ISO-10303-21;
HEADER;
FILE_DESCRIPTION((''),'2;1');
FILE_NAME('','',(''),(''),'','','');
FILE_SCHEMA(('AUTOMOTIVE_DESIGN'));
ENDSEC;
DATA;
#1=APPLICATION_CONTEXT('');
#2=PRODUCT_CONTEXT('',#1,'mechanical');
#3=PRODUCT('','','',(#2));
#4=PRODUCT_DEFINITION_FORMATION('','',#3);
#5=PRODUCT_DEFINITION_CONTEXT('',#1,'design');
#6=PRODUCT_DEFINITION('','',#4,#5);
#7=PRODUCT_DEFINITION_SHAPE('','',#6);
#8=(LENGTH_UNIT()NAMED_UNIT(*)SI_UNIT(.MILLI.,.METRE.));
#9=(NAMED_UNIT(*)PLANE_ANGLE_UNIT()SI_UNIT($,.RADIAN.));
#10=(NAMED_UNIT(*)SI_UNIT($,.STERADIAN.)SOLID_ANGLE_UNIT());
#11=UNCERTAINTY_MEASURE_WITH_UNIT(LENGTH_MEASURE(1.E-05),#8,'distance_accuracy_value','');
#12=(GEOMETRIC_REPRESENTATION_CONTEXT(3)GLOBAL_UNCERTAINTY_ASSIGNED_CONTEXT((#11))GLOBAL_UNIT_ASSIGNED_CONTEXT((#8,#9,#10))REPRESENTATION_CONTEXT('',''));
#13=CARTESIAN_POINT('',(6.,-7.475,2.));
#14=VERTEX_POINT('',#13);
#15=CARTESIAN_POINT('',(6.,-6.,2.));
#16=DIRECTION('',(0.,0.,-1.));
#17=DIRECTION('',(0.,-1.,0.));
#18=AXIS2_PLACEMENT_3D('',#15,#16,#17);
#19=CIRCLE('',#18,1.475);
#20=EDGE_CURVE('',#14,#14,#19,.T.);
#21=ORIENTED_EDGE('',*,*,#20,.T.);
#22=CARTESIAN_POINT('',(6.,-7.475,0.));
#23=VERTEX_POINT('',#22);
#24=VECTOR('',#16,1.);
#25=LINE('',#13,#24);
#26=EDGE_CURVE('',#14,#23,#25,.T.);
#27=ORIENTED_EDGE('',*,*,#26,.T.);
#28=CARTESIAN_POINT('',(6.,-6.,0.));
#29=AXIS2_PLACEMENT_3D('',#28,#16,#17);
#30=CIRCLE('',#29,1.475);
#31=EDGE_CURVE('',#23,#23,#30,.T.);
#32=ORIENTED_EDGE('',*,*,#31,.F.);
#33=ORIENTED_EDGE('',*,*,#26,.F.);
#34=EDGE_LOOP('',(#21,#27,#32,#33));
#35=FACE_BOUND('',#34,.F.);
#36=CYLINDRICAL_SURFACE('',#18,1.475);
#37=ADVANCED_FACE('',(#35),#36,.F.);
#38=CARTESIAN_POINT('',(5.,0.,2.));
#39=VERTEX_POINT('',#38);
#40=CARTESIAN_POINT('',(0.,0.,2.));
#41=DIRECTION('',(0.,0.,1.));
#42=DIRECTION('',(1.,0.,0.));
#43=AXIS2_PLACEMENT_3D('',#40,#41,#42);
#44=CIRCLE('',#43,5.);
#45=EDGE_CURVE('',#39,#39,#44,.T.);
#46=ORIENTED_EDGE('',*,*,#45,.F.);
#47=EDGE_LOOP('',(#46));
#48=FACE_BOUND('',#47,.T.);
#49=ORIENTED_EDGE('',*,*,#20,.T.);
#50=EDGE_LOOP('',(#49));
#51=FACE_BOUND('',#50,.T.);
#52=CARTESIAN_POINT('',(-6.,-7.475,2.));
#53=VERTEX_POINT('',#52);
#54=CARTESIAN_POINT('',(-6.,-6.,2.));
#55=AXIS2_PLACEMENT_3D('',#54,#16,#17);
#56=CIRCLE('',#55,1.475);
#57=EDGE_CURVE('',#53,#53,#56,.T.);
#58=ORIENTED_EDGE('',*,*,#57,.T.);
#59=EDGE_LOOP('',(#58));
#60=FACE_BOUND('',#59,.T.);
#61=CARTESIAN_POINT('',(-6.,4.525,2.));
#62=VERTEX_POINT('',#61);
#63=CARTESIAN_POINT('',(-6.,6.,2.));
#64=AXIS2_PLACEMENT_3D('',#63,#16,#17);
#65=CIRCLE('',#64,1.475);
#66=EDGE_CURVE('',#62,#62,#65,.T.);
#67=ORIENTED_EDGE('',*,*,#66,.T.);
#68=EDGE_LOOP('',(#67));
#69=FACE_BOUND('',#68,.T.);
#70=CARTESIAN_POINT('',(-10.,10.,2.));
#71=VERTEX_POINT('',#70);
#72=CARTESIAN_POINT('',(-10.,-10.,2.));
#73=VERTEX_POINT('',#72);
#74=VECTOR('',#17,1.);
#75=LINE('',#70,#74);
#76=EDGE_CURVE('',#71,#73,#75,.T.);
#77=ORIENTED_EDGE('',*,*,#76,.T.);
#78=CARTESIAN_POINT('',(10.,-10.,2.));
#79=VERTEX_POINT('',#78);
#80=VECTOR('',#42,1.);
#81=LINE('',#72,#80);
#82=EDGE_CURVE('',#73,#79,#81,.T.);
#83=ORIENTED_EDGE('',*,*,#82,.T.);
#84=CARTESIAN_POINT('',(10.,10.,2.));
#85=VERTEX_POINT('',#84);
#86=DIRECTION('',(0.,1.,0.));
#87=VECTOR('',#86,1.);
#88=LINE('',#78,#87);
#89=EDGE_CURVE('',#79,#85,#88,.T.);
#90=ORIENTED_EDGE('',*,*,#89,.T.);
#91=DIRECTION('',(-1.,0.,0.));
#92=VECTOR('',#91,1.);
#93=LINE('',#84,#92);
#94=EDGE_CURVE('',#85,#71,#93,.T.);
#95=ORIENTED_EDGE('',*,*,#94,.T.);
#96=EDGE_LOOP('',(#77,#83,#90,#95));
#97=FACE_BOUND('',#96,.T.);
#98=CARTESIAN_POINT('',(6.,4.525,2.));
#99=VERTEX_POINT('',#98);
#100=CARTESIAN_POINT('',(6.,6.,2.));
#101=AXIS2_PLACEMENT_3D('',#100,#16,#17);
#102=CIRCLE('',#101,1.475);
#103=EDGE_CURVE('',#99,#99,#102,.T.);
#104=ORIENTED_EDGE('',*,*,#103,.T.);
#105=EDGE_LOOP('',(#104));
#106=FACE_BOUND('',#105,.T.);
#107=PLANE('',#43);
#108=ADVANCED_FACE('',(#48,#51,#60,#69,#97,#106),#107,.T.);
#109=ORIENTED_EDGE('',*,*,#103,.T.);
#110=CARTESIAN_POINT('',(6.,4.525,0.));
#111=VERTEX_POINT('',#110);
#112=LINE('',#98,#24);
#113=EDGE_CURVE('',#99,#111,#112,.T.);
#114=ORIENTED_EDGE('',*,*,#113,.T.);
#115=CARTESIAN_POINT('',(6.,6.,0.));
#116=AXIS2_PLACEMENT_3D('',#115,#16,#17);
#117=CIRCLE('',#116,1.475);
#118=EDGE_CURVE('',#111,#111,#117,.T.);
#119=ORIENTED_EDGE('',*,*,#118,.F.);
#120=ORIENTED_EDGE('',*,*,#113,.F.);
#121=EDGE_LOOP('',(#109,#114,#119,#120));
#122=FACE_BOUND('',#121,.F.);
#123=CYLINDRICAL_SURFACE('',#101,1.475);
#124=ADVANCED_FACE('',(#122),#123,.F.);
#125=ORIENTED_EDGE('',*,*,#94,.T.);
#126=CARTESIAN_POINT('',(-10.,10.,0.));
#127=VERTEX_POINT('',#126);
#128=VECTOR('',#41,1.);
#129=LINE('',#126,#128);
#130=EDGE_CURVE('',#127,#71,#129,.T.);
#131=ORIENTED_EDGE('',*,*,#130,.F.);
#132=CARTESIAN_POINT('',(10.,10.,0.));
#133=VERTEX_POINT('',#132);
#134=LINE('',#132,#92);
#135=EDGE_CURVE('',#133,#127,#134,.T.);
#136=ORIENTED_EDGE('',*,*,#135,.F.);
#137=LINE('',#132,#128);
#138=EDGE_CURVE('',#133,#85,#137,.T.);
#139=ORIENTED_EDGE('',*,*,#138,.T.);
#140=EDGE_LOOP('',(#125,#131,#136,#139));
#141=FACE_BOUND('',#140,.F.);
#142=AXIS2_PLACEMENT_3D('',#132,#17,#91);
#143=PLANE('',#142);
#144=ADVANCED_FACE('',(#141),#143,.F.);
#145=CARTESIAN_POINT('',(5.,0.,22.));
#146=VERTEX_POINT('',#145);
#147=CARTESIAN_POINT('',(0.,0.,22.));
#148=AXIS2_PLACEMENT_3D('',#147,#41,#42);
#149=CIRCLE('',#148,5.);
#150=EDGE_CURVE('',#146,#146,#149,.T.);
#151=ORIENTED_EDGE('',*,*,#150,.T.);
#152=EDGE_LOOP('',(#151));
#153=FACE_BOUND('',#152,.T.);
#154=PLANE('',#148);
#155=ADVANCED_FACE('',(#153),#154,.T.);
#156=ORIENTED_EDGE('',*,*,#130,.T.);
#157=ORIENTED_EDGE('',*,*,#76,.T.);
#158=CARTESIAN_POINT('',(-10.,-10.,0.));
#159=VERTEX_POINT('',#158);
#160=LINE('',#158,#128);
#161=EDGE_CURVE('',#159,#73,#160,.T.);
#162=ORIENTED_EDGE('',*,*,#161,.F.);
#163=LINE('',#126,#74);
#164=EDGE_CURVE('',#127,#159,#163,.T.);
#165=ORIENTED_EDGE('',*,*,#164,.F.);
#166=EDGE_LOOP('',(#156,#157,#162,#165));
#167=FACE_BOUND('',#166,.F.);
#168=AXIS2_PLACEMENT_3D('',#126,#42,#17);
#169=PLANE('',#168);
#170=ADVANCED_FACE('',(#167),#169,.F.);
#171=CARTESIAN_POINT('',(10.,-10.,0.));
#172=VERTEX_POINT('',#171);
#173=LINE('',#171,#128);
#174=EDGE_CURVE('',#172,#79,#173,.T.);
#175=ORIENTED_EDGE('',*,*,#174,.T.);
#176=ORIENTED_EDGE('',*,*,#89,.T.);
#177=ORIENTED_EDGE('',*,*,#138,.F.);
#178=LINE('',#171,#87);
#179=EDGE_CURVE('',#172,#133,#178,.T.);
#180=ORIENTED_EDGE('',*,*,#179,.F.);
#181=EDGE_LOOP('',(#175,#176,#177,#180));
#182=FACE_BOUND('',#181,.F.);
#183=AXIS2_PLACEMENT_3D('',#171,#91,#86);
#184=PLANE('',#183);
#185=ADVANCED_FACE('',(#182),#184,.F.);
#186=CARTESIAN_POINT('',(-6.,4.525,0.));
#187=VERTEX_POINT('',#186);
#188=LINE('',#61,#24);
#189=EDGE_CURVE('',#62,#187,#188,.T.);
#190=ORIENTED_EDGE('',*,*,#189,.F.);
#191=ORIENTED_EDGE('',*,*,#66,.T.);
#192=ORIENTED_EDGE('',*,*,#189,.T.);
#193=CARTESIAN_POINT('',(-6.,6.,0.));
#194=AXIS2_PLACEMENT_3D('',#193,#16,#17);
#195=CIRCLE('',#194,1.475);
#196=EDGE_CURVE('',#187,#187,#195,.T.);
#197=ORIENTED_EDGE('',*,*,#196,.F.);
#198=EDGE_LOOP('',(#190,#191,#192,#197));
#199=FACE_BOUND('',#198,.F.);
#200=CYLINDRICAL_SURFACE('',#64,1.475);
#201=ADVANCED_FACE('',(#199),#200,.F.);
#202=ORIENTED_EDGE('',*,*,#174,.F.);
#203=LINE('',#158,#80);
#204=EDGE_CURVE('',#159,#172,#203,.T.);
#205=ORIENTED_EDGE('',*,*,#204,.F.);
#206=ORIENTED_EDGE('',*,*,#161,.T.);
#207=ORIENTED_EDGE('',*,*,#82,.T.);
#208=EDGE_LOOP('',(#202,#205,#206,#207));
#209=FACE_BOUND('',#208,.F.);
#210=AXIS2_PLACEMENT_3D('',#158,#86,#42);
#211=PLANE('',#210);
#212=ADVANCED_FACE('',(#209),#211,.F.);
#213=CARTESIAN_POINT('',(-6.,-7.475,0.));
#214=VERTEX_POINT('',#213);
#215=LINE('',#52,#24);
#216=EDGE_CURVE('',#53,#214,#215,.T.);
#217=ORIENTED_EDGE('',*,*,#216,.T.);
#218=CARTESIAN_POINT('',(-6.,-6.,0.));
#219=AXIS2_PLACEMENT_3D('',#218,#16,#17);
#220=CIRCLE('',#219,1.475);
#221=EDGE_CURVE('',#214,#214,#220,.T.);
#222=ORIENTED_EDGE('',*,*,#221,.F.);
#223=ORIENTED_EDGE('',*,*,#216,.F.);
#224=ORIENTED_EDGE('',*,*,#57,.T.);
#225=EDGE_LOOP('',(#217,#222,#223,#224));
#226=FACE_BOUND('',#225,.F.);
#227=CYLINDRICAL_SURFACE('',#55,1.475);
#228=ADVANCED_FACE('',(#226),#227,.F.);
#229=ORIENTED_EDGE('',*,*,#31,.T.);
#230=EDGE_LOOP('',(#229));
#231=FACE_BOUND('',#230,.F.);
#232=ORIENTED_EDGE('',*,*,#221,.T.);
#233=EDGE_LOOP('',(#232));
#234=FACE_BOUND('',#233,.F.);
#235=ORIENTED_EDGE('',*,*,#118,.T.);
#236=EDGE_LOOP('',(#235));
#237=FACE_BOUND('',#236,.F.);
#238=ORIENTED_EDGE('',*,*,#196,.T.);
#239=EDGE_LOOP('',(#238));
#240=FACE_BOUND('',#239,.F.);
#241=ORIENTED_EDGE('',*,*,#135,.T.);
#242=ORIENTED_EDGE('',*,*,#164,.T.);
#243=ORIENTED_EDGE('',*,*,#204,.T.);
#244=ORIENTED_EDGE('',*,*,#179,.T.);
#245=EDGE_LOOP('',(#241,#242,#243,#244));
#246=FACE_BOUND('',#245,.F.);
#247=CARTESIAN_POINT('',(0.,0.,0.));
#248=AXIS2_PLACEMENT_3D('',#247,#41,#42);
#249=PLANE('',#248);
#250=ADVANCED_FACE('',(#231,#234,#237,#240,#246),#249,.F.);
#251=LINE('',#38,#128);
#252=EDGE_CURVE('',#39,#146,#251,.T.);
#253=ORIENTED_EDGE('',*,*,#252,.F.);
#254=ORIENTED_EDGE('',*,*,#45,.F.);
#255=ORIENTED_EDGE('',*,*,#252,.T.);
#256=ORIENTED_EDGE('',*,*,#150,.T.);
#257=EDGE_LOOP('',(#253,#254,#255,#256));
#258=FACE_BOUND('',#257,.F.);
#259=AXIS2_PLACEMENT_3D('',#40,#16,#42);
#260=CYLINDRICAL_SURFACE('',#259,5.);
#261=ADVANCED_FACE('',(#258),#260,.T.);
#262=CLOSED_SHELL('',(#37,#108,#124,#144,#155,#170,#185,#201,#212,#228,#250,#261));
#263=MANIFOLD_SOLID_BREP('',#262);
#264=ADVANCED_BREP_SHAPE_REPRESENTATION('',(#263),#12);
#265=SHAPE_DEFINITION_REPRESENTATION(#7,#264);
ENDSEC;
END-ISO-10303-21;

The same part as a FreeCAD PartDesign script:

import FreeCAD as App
import Part
import Sketcher

doc = App.newDocument("Part")
params = doc.addObject("Spreadsheet::Sheet", "Params")
for row, (alias, value) in enumerate([
    ("sketch1_width", "20 mm"),
    ("pad1_length", "2 mm"),
    ("sketch2_diameter", "10 mm"),
    ("pad2_length", "20 mm"),
    ("sketch3_diameter", "2.95 mm"),
    ("hole_diameter", "2.95 mm"),
], start=1):
    params.set(f"A{row}", alias)
    params.set(f"B{row}", "=" + value)
    params.setAlias(f"B{row}", alias)

body = doc.addObject("PartDesign::Body", "Body")

# Sketch on XY plane
sketch1 = doc.addObject("Sketcher::SketchObject", "Sketch")
body.addObject(sketch1)
sketch1.AttachmentSupport = (doc.XY_Plane, [""])
sketch1.MapMode = "FlatFace"
sketch1.addGeometry(Part.LineSegment(App.Vector(-10, 10, 0), App.Vector(-10, -10, 0)), False)
sketch1.addGeometry(Part.LineSegment(App.Vector(-10, -10, 0), App.Vector(10, -10, 0)), False)
sketch1.addGeometry(Part.LineSegment(App.Vector(10, -10, 0), App.Vector(10, 10, 0)), False)
sketch1.addGeometry(Part.LineSegment(App.Vector(10, 10, 0), App.Vector(-10, 10, 0)), False)
sketch1.addConstraint(Sketcher.Constraint("Coincident", 0, 2, 1, 1))
sketch1.addConstraint(Sketcher.Constraint("Coincident", 1, 2, 2, 1))
sketch1.addConstraint(Sketcher.Constraint("Coincident", 2, 2, 3, 1))
sketch1.addConstraint(Sketcher.Constraint("Coincident", 3, 2, 0, 1))
sketch1.addConstraint(Sketcher.Constraint("Vertical", 0))
sketch1.addConstraint(Sketcher.Constraint("Horizontal", 1))
sketch1.addConstraint(Sketcher.Constraint("Vertical", 2))
sketch1.addConstraint(Sketcher.Constraint("Horizontal", 3))
sketch1.addConstraint(Sketcher.Constraint("Symmetric", 0, 2, 2, 2, -1, 1))
sketch1.addConstraint(Sketcher.Constraint("Equal", 3, 0))
sketch1.addConstraint(Sketcher.Constraint("DistanceX", 1, 1, 1, 2, 20.0))
sketch1.setExpression("Constraints[10]", "Params.sketch1_width")
pad1 = doc.addObject("PartDesign::Pad", "Pad")
body.addObject(pad1)
pad1.Profile = sketch1
pad1.setExpression("Length", "Params.pad1_length")

# Sketch on XY plane
sketch2 = doc.addObject("Sketcher::SketchObject", "Sketch001")
body.addObject(sketch2)
sketch2.AttachmentSupport = (doc.XY_Plane, [""])
sketch2.MapMode = "FlatFace"
sketch2.AttachmentOffset = App.Placement(App.Vector(0, 0, 2), App.Rotation())
sketch2.addGeometry(Part.Circle(App.Vector(0, 0, 0), App.Vector(0, 0, 1), 5), False)
sketch2.addConstraint(Sketcher.Constraint("Coincident", 0, 3, -1, 1))
sketch2.addConstraint(Sketcher.Constraint("Diameter", 0, 10.0))
sketch2.setExpression("Constraints[1]", "Params.sketch2_diameter")
pad2 = doc.addObject("PartDesign::Pad", "Pad001")
body.addObject(pad2)
pad2.Profile = sketch2
pad2.setExpression("Length", "Params.pad2_length")

# Sketch on XY plane
sketch3 = doc.addObject("Sketcher::SketchObject", "Sketch002")
body.addObject(sketch3)
sketch3.AttachmentSupport = (doc.XY_Plane, [""])
sketch3.MapMode = "FlatFace"
sketch3.AttachmentOffset = App.Placement(App.Vector(0, 0, 2), App.Rotation())
sketch3.addGeometry(Part.Circle(App.Vector(-6, 6, 0), App.Vector(0, 0, 1), 1.5), False)
sketch3.addGeometry(Part.Circle(App.Vector(6, 6, 0), App.Vector(0, 0, 1), 1.5), False)
sketch3.addGeometry(Part.Circle(App.Vector(6, -6, 0), App.Vector(0, 0, 1), 1.5), False)
sketch3.addGeometry(Part.Circle(App.Vector(-6, -6, 0), App.Vector(0, 0, 1), 1.5), False)
sketch3.addConstraint(Sketcher.Constraint("Equal", 0, 1))
sketch3.addConstraint(Sketcher.Constraint("Equal", 1, 2))
sketch3.addConstraint(Sketcher.Constraint("Equal", 2, 3))
sketch3.addConstraint(Sketcher.Constraint("Symmetric", 0, 3, 2, 3, -1, 1))
sketch3.addConstraint(Sketcher.Constraint("Symmetric", 1, 3, 3, 3, -1, 1))
sketch3.addConstraint(Sketcher.Constraint("Symmetric", 0, 3, 1, 3, -2))
sketch3.addConstraint(Sketcher.Constraint("Diameter", 0, 2.95))
sketch3.addConstraint(Sketcher.Constraint("DistanceX", 0, 3, -1, 1, 6.0))
sketch3.addConstraint(Sketcher.Constraint("DistanceY", -1, 1, 0, 3, 6.0))
sketch3.setExpression("Constraints[6]", "Params.sketch3_diameter")
doc.recompute()
hole = doc.addObject("PartDesign::Hole", "Hole")
body.addObject(hole)
hole.Profile = sketch3
hole.ThreadType = "None"
hole.setExpression("Diameter", "Params.hole_diameter")
hole.DepthType = "ThroughAll"

doc.recompute()
